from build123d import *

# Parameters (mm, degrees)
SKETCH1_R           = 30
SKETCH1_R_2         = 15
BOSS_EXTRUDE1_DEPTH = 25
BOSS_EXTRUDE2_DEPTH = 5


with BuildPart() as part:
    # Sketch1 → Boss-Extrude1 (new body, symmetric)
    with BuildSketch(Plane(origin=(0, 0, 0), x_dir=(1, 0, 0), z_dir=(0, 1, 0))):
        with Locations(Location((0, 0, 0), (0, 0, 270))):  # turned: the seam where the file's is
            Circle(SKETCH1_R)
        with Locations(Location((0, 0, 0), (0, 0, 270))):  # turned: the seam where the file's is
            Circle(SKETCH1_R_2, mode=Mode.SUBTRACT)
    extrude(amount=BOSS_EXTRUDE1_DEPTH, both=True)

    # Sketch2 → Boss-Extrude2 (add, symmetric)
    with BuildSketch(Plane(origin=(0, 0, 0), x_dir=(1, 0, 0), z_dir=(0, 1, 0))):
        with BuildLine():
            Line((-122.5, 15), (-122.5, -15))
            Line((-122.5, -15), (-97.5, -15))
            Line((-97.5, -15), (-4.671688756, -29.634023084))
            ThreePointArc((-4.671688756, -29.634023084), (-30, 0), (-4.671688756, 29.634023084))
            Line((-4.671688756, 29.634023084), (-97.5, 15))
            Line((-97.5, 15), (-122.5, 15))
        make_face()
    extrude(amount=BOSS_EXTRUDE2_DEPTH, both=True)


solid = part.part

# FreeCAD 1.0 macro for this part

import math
import FreeCAD as App
import Part
import Sketcher
Q = App.Units.Quantity

doc = App.newDocument("Part")
body = doc.addObject("PartDesign::Body", "Body")

# Sketch on XZ plane
sketch1 = body.newObject("Sketcher::SketchObject", "Sketch")
sketch1.AttachmentSupport = (doc.getObject("XZ_Plane"), [""])
sketch1.MapMode = "FlatFace"
sketch1.addGeometry(Part.Circle(App.Vector(0, 0, 0), App.Vector(0, 0, 1), 30), False)
sketch1.addGeometry(Part.Circle(App.Vector(0, 0, 0), App.Vector(0, 0, 1), 15), False)
sketch1.addConstraint(Sketcher.Constraint("Coincident", 0, 3, -1, 1))
sketch1.addConstraint(Sketcher.Constraint("Coincident", 1, 3, -1, 1))
sketch1.addConstraint(Sketcher.Constraint("Diameter", 0, Q("60 mm")))
sketch1.addConstraint(Sketcher.Constraint("Diameter", 1, Q("30 mm")))
pad1 = body.newObject("PartDesign::Pad", "Pad")
pad1.Profile = sketch1
pad1.Length = 50
pad1.Midplane = True

# Sketch on XZ plane
sketch2 = body.newObject("Sketcher::SketchObject", "Sketch001")
sketch2.AttachmentSupport = (doc.getObject("XZ_Plane"), [""])
sketch2.MapMode = "FlatFace"
sketch2.addGeometry(Part.LineSegment(App.Vector(-122, -15, 0), App.Vector(-122, 15, 0)), False)
sketch2.addGeometry(Part.LineSegment(App.Vector(-122, 15, 0), App.Vector(-98, 15, 0)), False)
sketch2.addGeometry(Part.LineSegment(App.Vector(-98, 15, 0), App.Vector(-5, 30, 0)), False)
sketch2.addGeometry(Part.ArcOfCircle(Part.Circle(App.Vector(0, 0, 0), App.Vector(0, 0, 1), 30), math.radians(99), math.radians(261)), False)
sketch2.addGeometry(Part.LineSegment(App.Vector(-5, -30, 0), App.Vector(-98, -15, 0)), False)
sketch2.addGeometry(Part.LineSegment(App.Vector(-98, -15, 0), App.Vector(-122, -15, 0)), False)
sketch2.addConstraint(Sketcher.Constraint("Coincident", 0, 2, 1, 1))
sketch2.addConstraint(Sketcher.Constraint("Coincident", 1, 2, 2, 1))
sketch2.addConstraint(Sketcher.Constraint("Tangent", 2, 2, 3, 1))
sketch2.addConstraint(Sketcher.Constraint("Tangent", 3, 2, 4, 1))
sketch2.addConstraint(Sketcher.Constraint("Coincident", 4, 2, 5, 1))
sketch2.addConstraint(Sketcher.Constraint("Coincident", 5, 2, 0, 1))
sketch2.addConstraint(Sketcher.Constraint("Vertical", 0))
sketch2.addConstraint(Sketcher.Constraint("Horizontal", 1))
sketch2.addConstraint(Sketcher.Constraint("Horizontal", 5))
sketch2.addConstraint(Sketcher.Constraint("Coincident", 3, 3, -1, 1))
sketch2.addConstraint(Sketcher.Constraint("Symmetric", 1, 2, 4, 2, -1))
sketch2.addConstraint(Sketcher.Constraint("Radius", 3, Q("30 mm")))
sketch2.addConstraint(Sketcher.Constraint("DistanceX", 1, 1, 1, 2, Q("25 mm")))
sketch2.addConstraint(Sketcher.Constraint("DistanceY", 0, 1, 0, 2, Q("30 mm")))
sketch2.addConstraint(Sketcher.Constraint("DistanceX", 0, 2, -1, 1, Q("122.5 mm")))
pad2 = body.newObject("PartDesign::Pad", "Pad001")
pad2.Profile = sketch2
pad2.Length = 10
pad2.Midplane = True

doc.recompute()
